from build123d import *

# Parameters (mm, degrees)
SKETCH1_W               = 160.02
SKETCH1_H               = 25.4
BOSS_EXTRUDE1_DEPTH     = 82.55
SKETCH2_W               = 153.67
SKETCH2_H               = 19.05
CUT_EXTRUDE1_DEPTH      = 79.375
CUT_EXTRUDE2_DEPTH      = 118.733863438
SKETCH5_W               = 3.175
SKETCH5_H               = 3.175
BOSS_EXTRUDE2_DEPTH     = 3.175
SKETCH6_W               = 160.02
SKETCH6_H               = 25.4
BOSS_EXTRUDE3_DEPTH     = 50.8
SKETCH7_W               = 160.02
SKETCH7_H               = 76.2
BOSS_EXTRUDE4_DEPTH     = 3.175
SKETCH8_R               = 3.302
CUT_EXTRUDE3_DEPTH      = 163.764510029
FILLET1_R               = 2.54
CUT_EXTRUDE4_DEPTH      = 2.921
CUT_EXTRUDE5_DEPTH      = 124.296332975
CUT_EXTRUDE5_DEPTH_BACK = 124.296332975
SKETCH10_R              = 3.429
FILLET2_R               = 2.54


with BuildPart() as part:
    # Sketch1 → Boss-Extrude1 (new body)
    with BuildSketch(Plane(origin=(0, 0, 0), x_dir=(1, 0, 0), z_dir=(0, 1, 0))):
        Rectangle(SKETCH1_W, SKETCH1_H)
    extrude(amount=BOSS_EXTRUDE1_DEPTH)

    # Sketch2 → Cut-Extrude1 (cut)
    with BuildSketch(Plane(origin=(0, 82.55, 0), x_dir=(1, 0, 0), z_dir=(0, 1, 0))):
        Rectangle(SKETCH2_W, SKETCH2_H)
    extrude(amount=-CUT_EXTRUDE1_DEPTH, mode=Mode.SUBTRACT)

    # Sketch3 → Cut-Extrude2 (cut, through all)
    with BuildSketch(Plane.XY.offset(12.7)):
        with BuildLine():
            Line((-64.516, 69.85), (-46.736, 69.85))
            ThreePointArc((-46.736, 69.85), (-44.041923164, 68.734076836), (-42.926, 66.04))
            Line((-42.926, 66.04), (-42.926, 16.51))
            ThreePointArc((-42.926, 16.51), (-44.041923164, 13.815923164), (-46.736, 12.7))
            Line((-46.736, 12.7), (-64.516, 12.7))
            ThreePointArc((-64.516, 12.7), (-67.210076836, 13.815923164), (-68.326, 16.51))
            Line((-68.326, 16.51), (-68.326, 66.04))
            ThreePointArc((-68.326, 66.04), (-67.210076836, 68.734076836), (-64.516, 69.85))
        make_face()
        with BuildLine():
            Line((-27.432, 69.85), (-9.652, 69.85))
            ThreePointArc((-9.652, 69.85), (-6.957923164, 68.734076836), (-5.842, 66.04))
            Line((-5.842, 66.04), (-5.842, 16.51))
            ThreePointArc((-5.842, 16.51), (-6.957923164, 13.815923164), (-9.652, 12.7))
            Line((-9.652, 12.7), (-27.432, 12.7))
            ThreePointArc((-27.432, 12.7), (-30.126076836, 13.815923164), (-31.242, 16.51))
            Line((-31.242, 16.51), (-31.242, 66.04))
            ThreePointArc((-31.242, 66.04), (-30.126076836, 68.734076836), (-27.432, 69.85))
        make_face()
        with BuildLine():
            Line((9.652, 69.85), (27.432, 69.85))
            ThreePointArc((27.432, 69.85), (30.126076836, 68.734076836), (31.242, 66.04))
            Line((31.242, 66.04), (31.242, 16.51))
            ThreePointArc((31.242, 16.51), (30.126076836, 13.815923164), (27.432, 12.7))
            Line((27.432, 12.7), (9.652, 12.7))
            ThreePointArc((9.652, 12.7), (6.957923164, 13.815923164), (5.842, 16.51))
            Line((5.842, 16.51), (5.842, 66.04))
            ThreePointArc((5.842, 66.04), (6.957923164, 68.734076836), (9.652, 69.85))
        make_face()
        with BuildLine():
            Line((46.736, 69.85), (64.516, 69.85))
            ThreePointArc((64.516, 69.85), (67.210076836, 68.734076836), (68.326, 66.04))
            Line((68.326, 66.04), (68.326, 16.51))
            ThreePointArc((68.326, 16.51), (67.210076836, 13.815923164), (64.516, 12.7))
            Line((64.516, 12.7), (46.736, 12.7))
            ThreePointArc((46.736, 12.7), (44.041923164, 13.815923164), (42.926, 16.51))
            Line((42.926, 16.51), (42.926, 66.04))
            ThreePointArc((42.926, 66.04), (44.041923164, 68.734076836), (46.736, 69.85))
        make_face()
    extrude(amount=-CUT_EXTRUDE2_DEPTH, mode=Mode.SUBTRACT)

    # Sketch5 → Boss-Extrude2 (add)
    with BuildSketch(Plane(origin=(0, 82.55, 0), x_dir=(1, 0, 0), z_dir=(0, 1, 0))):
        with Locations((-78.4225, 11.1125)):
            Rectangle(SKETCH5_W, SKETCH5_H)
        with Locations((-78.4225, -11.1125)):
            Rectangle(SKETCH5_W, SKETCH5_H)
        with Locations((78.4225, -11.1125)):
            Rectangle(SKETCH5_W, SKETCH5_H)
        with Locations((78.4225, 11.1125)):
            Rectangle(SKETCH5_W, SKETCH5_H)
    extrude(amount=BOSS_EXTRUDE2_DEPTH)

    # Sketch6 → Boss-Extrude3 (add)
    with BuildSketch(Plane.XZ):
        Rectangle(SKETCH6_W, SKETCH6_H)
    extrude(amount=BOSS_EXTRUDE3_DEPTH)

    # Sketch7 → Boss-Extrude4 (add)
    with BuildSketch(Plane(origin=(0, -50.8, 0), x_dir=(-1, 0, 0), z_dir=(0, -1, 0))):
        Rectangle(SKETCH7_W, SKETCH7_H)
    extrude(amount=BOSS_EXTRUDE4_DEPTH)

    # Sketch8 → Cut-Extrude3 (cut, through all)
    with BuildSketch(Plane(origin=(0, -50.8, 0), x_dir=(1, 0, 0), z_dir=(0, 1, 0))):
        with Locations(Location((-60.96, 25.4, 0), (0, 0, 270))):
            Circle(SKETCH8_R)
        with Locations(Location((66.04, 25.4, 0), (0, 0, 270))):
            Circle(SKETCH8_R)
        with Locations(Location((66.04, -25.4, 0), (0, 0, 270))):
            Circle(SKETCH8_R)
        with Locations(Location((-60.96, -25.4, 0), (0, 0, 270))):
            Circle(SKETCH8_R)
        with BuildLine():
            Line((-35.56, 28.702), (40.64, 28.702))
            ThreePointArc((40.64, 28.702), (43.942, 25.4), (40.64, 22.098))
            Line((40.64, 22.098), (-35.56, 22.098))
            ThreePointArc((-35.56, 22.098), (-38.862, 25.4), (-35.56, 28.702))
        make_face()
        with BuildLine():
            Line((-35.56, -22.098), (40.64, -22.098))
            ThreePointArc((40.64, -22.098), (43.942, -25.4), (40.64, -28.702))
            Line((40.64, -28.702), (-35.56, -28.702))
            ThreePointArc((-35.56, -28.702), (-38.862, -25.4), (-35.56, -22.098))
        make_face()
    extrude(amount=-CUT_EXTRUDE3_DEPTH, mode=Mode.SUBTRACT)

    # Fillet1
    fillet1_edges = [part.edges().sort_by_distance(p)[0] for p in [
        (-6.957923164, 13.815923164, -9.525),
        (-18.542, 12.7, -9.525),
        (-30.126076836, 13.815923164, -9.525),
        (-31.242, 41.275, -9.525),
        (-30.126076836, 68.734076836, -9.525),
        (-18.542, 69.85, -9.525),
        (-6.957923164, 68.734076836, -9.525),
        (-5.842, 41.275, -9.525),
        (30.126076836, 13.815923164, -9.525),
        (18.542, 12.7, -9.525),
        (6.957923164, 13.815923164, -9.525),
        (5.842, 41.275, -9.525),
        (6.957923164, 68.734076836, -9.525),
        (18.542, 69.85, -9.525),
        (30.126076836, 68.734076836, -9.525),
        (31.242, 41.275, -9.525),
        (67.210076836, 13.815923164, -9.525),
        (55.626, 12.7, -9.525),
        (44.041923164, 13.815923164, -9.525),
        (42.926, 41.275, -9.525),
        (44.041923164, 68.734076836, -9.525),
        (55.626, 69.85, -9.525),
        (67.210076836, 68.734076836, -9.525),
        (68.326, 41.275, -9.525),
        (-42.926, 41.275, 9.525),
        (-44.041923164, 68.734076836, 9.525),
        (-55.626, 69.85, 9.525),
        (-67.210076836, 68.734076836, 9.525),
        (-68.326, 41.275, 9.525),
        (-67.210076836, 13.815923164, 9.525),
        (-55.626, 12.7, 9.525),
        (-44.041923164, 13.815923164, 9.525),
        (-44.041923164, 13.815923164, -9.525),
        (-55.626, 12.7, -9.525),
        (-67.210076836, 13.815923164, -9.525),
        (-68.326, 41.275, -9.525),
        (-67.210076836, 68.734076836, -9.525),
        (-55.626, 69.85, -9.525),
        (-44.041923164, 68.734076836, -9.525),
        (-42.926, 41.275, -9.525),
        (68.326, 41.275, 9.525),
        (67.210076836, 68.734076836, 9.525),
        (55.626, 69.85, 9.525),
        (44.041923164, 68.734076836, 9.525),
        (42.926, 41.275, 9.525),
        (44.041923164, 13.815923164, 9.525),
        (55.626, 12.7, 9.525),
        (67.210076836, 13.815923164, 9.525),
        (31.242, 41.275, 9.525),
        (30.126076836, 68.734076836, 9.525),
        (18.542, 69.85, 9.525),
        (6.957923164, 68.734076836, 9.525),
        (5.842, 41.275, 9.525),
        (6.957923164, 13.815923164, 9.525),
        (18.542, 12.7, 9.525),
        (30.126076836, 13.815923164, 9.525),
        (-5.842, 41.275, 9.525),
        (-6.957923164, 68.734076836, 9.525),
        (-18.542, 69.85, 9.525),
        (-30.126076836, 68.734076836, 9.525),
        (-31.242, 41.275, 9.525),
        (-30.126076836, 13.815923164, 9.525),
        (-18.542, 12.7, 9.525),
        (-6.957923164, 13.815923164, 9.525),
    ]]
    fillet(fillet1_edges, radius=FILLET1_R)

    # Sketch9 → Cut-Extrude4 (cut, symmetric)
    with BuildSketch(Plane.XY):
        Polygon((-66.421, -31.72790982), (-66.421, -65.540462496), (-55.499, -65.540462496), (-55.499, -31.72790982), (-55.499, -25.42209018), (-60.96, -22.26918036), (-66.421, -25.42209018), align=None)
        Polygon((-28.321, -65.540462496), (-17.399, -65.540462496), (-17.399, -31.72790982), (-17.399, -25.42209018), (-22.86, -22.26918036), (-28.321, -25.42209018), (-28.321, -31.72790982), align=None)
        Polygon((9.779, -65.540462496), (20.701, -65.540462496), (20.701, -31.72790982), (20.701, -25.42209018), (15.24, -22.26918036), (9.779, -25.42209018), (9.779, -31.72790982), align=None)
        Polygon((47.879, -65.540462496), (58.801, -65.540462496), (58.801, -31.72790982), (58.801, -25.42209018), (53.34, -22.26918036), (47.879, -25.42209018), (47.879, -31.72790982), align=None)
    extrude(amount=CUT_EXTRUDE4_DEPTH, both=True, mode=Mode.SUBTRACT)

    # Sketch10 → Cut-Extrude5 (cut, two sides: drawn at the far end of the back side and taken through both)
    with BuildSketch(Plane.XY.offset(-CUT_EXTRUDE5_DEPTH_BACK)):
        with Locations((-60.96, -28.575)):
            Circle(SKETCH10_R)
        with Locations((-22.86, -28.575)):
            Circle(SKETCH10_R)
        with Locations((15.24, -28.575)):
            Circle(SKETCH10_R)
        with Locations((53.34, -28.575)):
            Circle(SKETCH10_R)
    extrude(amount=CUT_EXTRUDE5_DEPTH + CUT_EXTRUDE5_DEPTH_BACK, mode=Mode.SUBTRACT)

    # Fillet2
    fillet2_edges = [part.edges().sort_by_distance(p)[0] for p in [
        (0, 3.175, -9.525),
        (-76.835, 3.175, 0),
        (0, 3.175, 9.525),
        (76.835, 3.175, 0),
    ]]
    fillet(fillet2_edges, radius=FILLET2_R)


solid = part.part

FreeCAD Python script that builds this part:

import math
import FreeCAD as App
import Part
import Sketcher
from FreeCAD import Vector
Q = App.Units.Quantity


def edges_at(feature, points):
    """Names of the edges that pass closest to the given points."""
    edges = feature.Shape.Edges
    near = lambda p: min(range(len(edges)), key=lambda i: edges[i].distToShape(Part.Vertex(*p))[0])
    return sorted({f"Edge{near(p) + 1}" for p in points})


def add_polygon(sketch, points):
    """Adds a closed chain of lines whose ends are joined by coincident constraints."""
    first, n = sketch.GeometryCount, len(points)
    for a, b in zip(points, points[1:] + points[:1]):
        sketch.addGeometry(Part.LineSegment(App.Vector(*a, 0), App.Vector(*b, 0)), False)
    for i in range(n):
        sketch.addConstraint(Sketcher.Constraint("Coincident", first + i, 2, first + (i + 1) % n, 1))

doc = App.newDocument("Part")
body = doc.addObject("PartDesign::Body", "Body")

# Sketch on XZ plane
sketch1 = body.newObject("Sketcher::SketchObject", "Sketch")
sketch1.AttachmentSupport = (doc.getObject("XZ_Plane"), [""])
sketch1.MapMode = "FlatFace"
add_polygon(sketch1, [(-80, -13), (-80, 13), (80, 13), (80, -13)])  # lines 0-3
sketch1.addConstraint(Sketcher.Constraint("Vertical", 0))
sketch1.addConstraint(Sketcher.Constraint("Horizontal", 1))
sketch1.addConstraint(Sketcher.Constraint("Vertical", 2))
sketch1.addConstraint(Sketcher.Constraint("Horizontal", 3))
sketch1.addConstraint(Sketcher.Constraint("Symmetric", 0, 2, 2, 2, -1, 1))
sketch1.addConstraint(Sketcher.Constraint("DistanceY", 0, 1, 0, 2, Q("1 in")))
sketch1.addConstraint(Sketcher.Constraint("DistanceX", 1, 1, 1, 2, Q("6.3 in")))
pad1 = body.newObject("PartDesign::Pad", "Pad")
pad1.Profile = sketch1
pad1.Length = Q("3.25 in")
pad1.Reversed = True

# Sketch on XZ plane
sketch2 = body.newObject("Sketcher::SketchObject", "Sketch001")
sketch2.AttachmentSupport = (doc.getObject("XZ_Plane"), [""])
sketch2.MapMode = "FlatFace"
sketch2.AttachmentOffset = App.Placement(Vector(0, 0, -3.25 * 25.4), App.Rotation())
add_polygon(sketch2, [(-77, -10), (-77, 10), (77, 10), (77, -10)])  # lines 0-3
sketch2.addConstraint(Sketcher.Constraint("Vertical", 0))
sketch2.addConstraint(Sketcher.Constraint("Horizontal", 1))
sketch2.addConstraint(Sketcher.Constraint("Vertical", 2))
sketch2.addConstraint(Sketcher.Constraint("Horizontal", 3))
sketch2.addConstraint(Sketcher.Constraint("Symmetric", 0, 2, 2, 2, -1, 1))
sketch2.addConstraint(Sketcher.Constraint("DistanceX", 1, 1, 1, 2, Q("6.05 in")))
sketch2.addConstraint(Sketcher.Constraint("DistanceY", 0, 1, 0, 2, Q("0.75 in")))
pocket1 = body.newObject("PartDesign::Pocket", "Pocket")
pocket1.Profile = sketch2
pocket1.Length = Q("3.125 in")
pocket1.Reversed = True

# Sketch on XY plane
sketch3 = body.newObject("Sketcher::SketchObject", "Sketch002")
sketch3.AttachmentSupport = (doc.getObject("XY_Plane"), [""])
sketch3.MapMode = "FlatFace"
sketch3.AttachmentOffset = App.Placement(Vector(0, 0, 0.5 * 25.4), App.Rotation())
sketch3.addGeometry(Part.LineSegment(Vector(-46.7, 69.8, 0), Vector(-64.5, 69.8, 0)), False)
sketch3.addGeometry(Part.ArcOfCircle(Part.Circle(Vector(-64.5, 66, 0), Vector(0, 0, 1), 3.8), math.radians(90), math.radians(180)), False)
sketch3.addGeometry(Part.LineSegment(Vector(-68.3, 66, 0), Vector(-68.3, 16.5, 0)), False)
sketch3.addGeometry(Part.ArcOfCircle(Part.Circle(Vector(-64.5, 16.5, 0), Vector(0, 0, 1), 3.8), math.radians(-180), math.radians(-90)), False)
sketch3.addGeometry(Part.LineSegment(Vector(-64.5, 12.7, 0), Vector(-46.7, 12.7, 0)), False)
sketch3.addGeometry(Part.ArcOfCircle(Part.Circle(Vector(-46.7, 16.5, 0), Vector(0, 0, 1), 3.8), math.radians(-90), math.radians(0)), False)
sketch3.addGeometry(Part.LineSegment(Vector(-42.9, 16.5, 0), Vector(-42.9, 66, 0)), False)
sketch3.addGeometry(Part.ArcOfCircle(Part.Circle(Vector(-46.7, 66, 0), Vector(0, 0, 1), 3.8), math.radians(0), math.radians(90)), False)
sketch3.addGeometry(Part.LineSegment(Vector(-9.7, 69.8, 0), Vector(-27.4, 69.8, 0)), False)
sketch3.addGeometry(Part.ArcOfCircle(Part.Circle(Vector(-27.4, 66, 0), Vector(0, 0, 1), 3.8), math.radians(90), math.radians(180)), False)
sketch3.addGeometry(Part.LineSegment(Vector(-31.2, 66, 0), Vector(-31.2, 16.5, 0)), False)
sketch3.addGeometry(Part.ArcOfCircle(Part.Circle(Vector(-27.4, 16.5, 0), Vector(0, 0, 1), 3.8), math.radians(-180), math.radians(-90)), False)
sketch3.addGeometry(Part.LineSegment(Vector(-27.4, 12.7, 0), Vector(-9.7, 12.7, 0)), False)
sketch3.addGeometry(Part.ArcOfCircle(Part.Circle(Vector(-9.7, 16.5, 0), Vector(0, 0, 1), 3.8), math.radians(-90), math.radians(0)), False)
sketch3.addGeometry(Part.LineSegment(Vector(-5.8, 16.5, 0), Vector(-5.8, 66, 0)), False)
sketch3.addGeometry(Part.ArcOfCircle(Part.Circle(Vector(-9.7, 66, 0), Vector(0, 0, 1), 3.8), math.radians(0), math.radians(90)), False)
sketch3.addGeometry(Part.LineSegment(Vector(27.4, 69.8, 0), Vector(9.7, 69.8, 0)), False)
sketch3.addGeometry(Part.ArcOfCircle(Part.Circle(Vector(9.7, 66, 0), Vector(0, 0, 1), 3.8), math.radians(90), math.radians(180)), False)
sketch3.addGeometry(Part.LineSegment(Vector(5.8, 66, 0), Vector(5.8, 16.5, 0)), False)
sketch3.addGeometry(Part.ArcOfCircle(Part.Circle(Vector(9.7, 16.5, 0), Vector(0, 0, 1), 3.8), math.radians(-180), math.radians(-90)), False)
sketch3.addGeometry(Part.LineSegment(Vector(9.7, 12.7, 0), Vector(27.4, 12.7, 0)), False)
sketch3.addGeometry(Part.ArcOfCircle(Part.Circle(Vector(27.4, 16.5, 0), Vector(0, 0, 1), 3.8), math.radians(-90), math.radians(0)), False)
sketch3.addGeometry(Part.LineSegment(Vector(31.2, 16.5, 0), Vector(31.2, 66, 0)), False)
sketch3.addGeometry(Part.ArcOfCircle(Part.Circle(Vector(27.4, 66, 0), Vector(0, 0, 1), 3.8), math.radians(0), math.radians(90)), False)
sketch3.addGeometry(Part.LineSegment(Vector(64.5, 69.8, 0), Vector(46.7, 69.8, 0)), False)
sketch3.addGeometry(Part.ArcOfCircle(Part.Circle(Vector(46.7, 66, 0), Vector(0, 0, 1), 3.8), math.radians(90), math.radians(180)), False)
sketch3.addGeometry(Part.LineSegment(Vector(42.9, 66, 0), Vector(42.9, 16.5, 0)), False)
sketch3.addGeometry(Part.ArcOfCircle(Part.Circle(Vector(46.7, 16.5, 0), Vector(0, 0, 1), 3.8), math.radians(-180), math.radians(-90)), False)
sketch3.addGeometry(Part.LineSegment(Vector(46.7, 12.7, 0), Vector(64.5, 12.7, 0)), False)
sketch3.addGeometry(Part.ArcOfCircle(Part.Circle(Vector(64.5, 16.5, 0), Vector(0, 0, 1), 3.8), math.radians(-90), math.radians(0)), False)
sketch3.addGeometry(Part.LineSegment(Vector(68.3, 16.5, 0), Vector(68.3, 66, 0)), False)
sketch3.addGeometry(Part.ArcOfCircle(Part.Circle(Vector(64.5, 66, 0), Vector(0, 0, 1), 3.8), math.radians(0), math.radians(90)), False)
sketch3.addConstraint(Sketcher.Constraint("Tangent", 0, 2, 1, 1))
sketch3.addConstraint(Sketcher.Constraint("Tangent", 1, 2, 2, 1))
sketch3.addConstraint(Sketcher.Constraint("Tangent", 2, 2, 3, 1))
sketch3.addConstraint(Sketcher.Constraint("Tangent", 3, 2, 4, 1))
sketch3.addConstraint(Sketcher.Constraint("Tangent", 4, 2, 5, 1))
sketch3.addConstraint(Sketcher.Constraint("Tangent", 5, 2, 6, 1))
sketch3.addConstraint(Sketcher.Constraint("Tangent", 6, 2, 7, 1))
sketch3.addConstraint(Sketcher.Constraint("Tangent", 7, 2, 0, 1))
sketch3.addConstraint(Sketcher.Constraint("Tangent", 8, 2, 9, 1))
sketch3.addConstraint(Sketcher.Constraint("Tangent", 9, 2, 10, 1))
sketch3.addConstraint(Sketcher.Constraint("Tangent", 10, 2, 11, 1))
sketch3.addConstraint(Sketcher.Constraint("Tangent", 11, 2, 12, 1))
sketch3.addConstraint(Sketcher.Constraint("Tangent", 12, 2, 13, 1))
sketch3.addConstraint(Sketcher.Constraint("Tangent", 13, 2, 14, 1))
sketch3.addConstraint(Sketcher.Constraint("Tangent", 14, 2, 15, 1))
sketch3.addConstraint(Sketcher.Constraint("Tangent", 15, 2, 8, 1))
sketch3.addConstraint(Sketcher.Constraint("Tangent", 16, 2, 17, 1))
sketch3.addConstraint(Sketcher.Constraint("Tangent", 17, 2, 18, 1))
sketch3.addConstraint(Sketcher.Constraint("Tangent", 18, 2, 19, 1))
sketch3.addConstraint(Sketcher.Constraint("Tangent", 19, 2, 20, 1))
sketch3.addConstraint(Sketcher.Constraint("Tangent", 20, 2, 21, 1))
sketch3.addConstraint(Sketcher.Constraint("Tangent", 21, 2, 22, 1))
sketch3.addConstraint(Sketcher.Constraint("Tangent", 22, 2, 23, 1))
sketch3.addConstraint(Sketcher.Constraint("Tangent", 23, 2, 16, 1))
sketch3.addConstraint(Sketcher.Constraint("Tangent", 24, 2, 25, 1))
sketch3.addConstraint(Sketcher.Constraint("Tangent", 25, 2, 26, 1))
sketch3.addConstraint(Sketcher.Constraint("Tangent", 26, 2, 27, 1))
sketch3.addConstraint(Sketcher.Constraint("Tangent", 27, 2, 28, 1))
sketch3.addConstraint(Sketcher.Constraint("Tangent", 28, 2, 29, 1))
sketch3.addConstraint(Sketcher.Constraint("Tangent", 29, 2, 30, 1))
sketch3.addConstraint(Sketcher.Constraint("Tangent", 30, 2, 31, 1))
sketch3.addConstraint(Sketcher.Constraint("Tangent", 31, 2, 24, 1))
sketch3.addConstraint(Sketcher.Constraint("Horizontal", 0))
sketch3.addConstraint(Sketcher.Constraint("Vertical", 2))
sketch3.addConstraint(Sketcher.Constraint("Horizontal", 4))
sketch3.addConstraint(Sketcher.Constraint("Vertical", 6))
sketch3.addConstraint(Sketcher.Constraint("Horizontal", 8))
sketch3.addConstraint(Sketcher.Constraint("Vertical", 10))
sketch3.addConstraint(Sketcher.Constraint("Horizontal", 12))
sketch3.addConstraint(Sketcher.Constraint("Vertical", 14))
sketch3.addConstraint(Sketcher.Constraint("Horizontal", 16))
sketch3.addConstraint(Sketcher.Constraint("Vertical", 18))
sketch3.addConstraint(Sketcher.Constraint("Horizontal", 20))
sketch3.addConstraint(Sketcher.Constraint("Vertical", 22))
sketch3.addConstraint(Sketcher.Constraint("Horizontal", 24))
sketch3.addConstraint(Sketcher.Constraint("Vertical", 26))
sketch3.addConstraint(Sketcher.Constraint("Horizontal", 28))
sketch3.addConstraint(Sketcher.Constraint("Vertical", 30))
sketch3.addConstraint(Sketcher.Constraint("Equal", 1, 3))
sketch3.addConstraint(Sketcher.Constraint("Equal", 3, 5))
sketch3.addConstraint(Sketcher.Constraint("Equal", 5, 7))
sketch3.addConstraint(Sketcher.Constraint("Equal", 7, 9))
sketch3.addConstraint(Sketcher.Constraint("Equal", 9, 11))
sketch3.addConstraint(Sketcher.Constraint("Equal", 11, 13))
sketch3.addConstraint(Sketcher.Constraint("Equal", 13, 15))
sketch3.addConstraint(Sketcher.Constraint("Equal", 15, 17))
sketch3.addConstraint(Sketcher.Constraint("Equal", 17, 19))
sketch3.addConstraint(Sketcher.Constraint("Equal", 19, 21))
sketch3.addConstraint(Sketcher.Constraint("Equal", 21, 23))
sketch3.addConstraint(Sketcher.Constraint("Equal", 23, 25))
sketch3.addConstraint(Sketcher.Constraint("Equal", 25, 27))
sketch3.addConstraint(Sketcher.Constraint("Equal", 27, 29))
sketch3.addConstraint(Sketcher.Constraint("Equal", 29, 31))
sketch3.addConstraint(Sketcher.Constraint("Symmetric", 15, 3, 17, 3, -2))
sketch3.addConstraint(Sketcher.Constraint("Symmetric", 11, 3, 21, 3, -2))
sketch3.addConstraint(Sketcher.Constraint("Symmetric", 7, 3, 25, 3, -2))
sketch3.addConstraint(Sketcher.Constraint("Symmetric", 3, 3, 29, 3, -2))
sketch3.addConstraint(Sketcher.Constraint("Horizontal", 7, 3, 9, 3))
sketch3.addConstraint(Sketcher.Constraint("Horizontal", 5, 3, 11, 3))
sketch3.addConstraint(Sketcher.Constraint("Equal", 4, 8))
sketch3.addConstraint(Sketcher.Constraint("Radius", 1, Q("0.15 in")))
sketch3.addConstraint(Sketcher.Constraint("DistanceX", 0, 2, 0, 1, Q("0.7 in")))
sketch3.addConstraint(Sketcher.Constraint("DistanceY", 2, 2, 2, 1, Q("1.95 in")))
sketch3.addConstraint(Sketcher.Constraint("DistanceY", -1, 1, 1, 3, Q("2.6 in")))
sketch3.addConstraint(Sketcher.Constraint("DistanceX", 1, 3, -1, 1, Q("2.54 in")))
sketch3.addConstraint(Sketcher.Constraint("DistanceX", 9, 3, -1, 1, Q("1.08 in")))
pocket2 = body.newObject("PartDesign::Pocket", "Pocket001")
pocket2.Profile = sketch3
pocket2.Type = "ThroughAll"

# Sketch on XZ plane
sketch4 = body.newObject("Sketcher::SketchObject", "Sketch003")
sketch4.AttachmentSupport = (doc.getObject("XZ_Plane"), [""])
sketch4.MapMode = "FlatFace"
sketch4.AttachmentOffset = App.Placement(Vector(0, 0, -3.25 * 25.4), App.Rotation())
add_polygon(sketch4, [(-80, -12.7), (-80, -9.5), (-76.8, -9.5), (-76.8, -12.7)])  # lines 0-3
add_polygon(sketch4, [(-80, 9.5), (-80, 12.7), (-76.8, 12.7), (-76.8, 9.5)])  # lines 4-7
add_polygon(sketch4, [(76.8, 9.5), (76.8, 12.7), (80, 12.7), (80, 9.5)])  # lines 8-11
add_polygon(sketch4, [(76.8, -12.7), (76.8, -9.5), (80, -9.5), (80, -12.7)])  # lines 12-15
sketch4.addConstraint(Sketcher.Constraint("Vertical", 0))
sketch4.addConstraint(Sketcher.Constraint("Horizontal", 1))
sketch4.addConstraint(Sketcher.Constraint("Vertical", 2))
sketch4.addConstraint(Sketcher.Constraint("Horizontal", 3))
sketch4.addConstraint(Sketcher.Constraint("Vertical", 4))
sketch4.addConstraint(Sketcher.Constraint("Horizontal", 5))
sketch4.addConstraint(Sketcher.Constraint("Vertical", 6))
sketch4.addConstraint(Sketcher.Constraint("Horizontal", 7))
sketch4.addConstraint(Sketcher.Constraint("Vertical", 8))
sketch4.addConstraint(Sketcher.Constraint("Horizontal", 9))
sketch4.addConstraint(Sketcher.Constraint("Vertical", 10))
sketch4.addConstraint(Sketcher.Constraint("Horizontal", 11))
sketch4.addConstraint(Sketcher.Constraint("Vertical", 12))
sketch4.addConstraint(Sketcher.Constraint("Horizontal", 13))
sketch4.addConstraint(Sketcher.Constraint("Vertical", 14))
sketch4.addConstraint(Sketcher.Constraint("Horizontal", 15))
sketch4.addConstraint(Sketcher.Constraint("Symmetric", 2, 2, 8, 2, -1, 1))
sketch4.addConstraint(Sketcher.Constraint("Symmetric", 0, 2, 10, 2, -1, 1))
sketch4.addConstraint(Sketcher.Constraint("Symmetric", 6, 2, 12, 2, -1, 1))
sketch4.addConstraint(Sketcher.Constraint("Symmetric", 4, 2, 14, 2, -1, 1))
sketch4.addConstraint(Sketcher.Constraint("Symmetric", 5, 2, 8, 2, -2))
sketch4.addConstraint(Sketcher.Constraint("Symmetric", 7, 2, 10, 2, -2))
sketch4.addConstraint(Sketcher.Constraint("Equal", 15, 0))
sketch4.addConstraint(Sketcher.Constraint("DistanceY", 3, 2, 4, 2, Q("1 in")))
sketch4.addConstraint(Sketcher.Constraint("DistanceX", 1, 1, 1, 2, Q("0.125 in")))
sketch4.addConstraint(Sketcher.Constraint("DistanceX", 0, 2, -1, 1, Q("3.15 in")))
pad2 = body.newObject("PartDesign::Pad", "Pad001")
pad2.Profile = sketch4
pad2.Length = Q("0.125 in")
pad2.Reversed = True

# Sketch on XZ plane
sketch5 = body.newObject("Sketcher::SketchObject", "Sketch004")
sketch5.AttachmentSupport = (doc.getObject("XZ_Plane"), [""])
sketch5.MapMode = "FlatFace"
add_polygon(sketch5, [(-80, 13), (-80, -13), (80, -13), (80, 13)])  # lines 0-3
sketch5.addConstraint(Sketcher.Constraint("Vertical", 0))
sketch5.addConstraint(Sketcher.Constraint("Horizontal", 1))
sketch5.addConstraint(Sketcher.Constraint("Vertical", 2))
sketch5.addConstraint(Sketcher.Constraint("Horizontal", 3))
sketch5.addConstraint(Sketcher.Constraint("Symmetric", 0, 2, 2, 2, -1, 1))
sketch5.addConstraint(Sketcher.Constraint("DistanceY", 0, 2, 0, 1, Q("1 in")))
sketch5.addConstraint(Sketcher.Constraint("DistanceX", 1, 1, 1, 2, Q("6.3 in")))
pad3 = body.newObject("PartDesign::Pad", "Pad002")
pad3.Profile = sketch5
pad3.Length = Q("2 in")

# Sketch on XZ plane
sketch6 = body.newObject("Sketcher::SketchObject", "Sketch005")
sketch6.AttachmentSupport = (doc.getObject("XZ_Plane"), [""])
sketch6.MapMode = "FlatFace"
sketch6.AttachmentOffset = App.Placement(Vector(0, 0, 2 * 25.4), App.Rotation())
add_polygon(sketch6, [(80, -38), (80, 38), (-80, 38), (-80, -38)])  # lines 0-3
sketch6.addConstraint(Sketcher.Constraint("Vertical", 0))
sketch6.addConstraint(Sketcher.Constraint("Horizontal", 1))
sketch6.addConstraint(Sketcher.Constraint("Vertical", 2))
sketch6.addConstraint(Sketcher.Constraint("Horizontal", 3))
sketch6.addConstraint(Sketcher.Constraint("Symmetric", 0, 2, 2, 2, -1, 1))
sketch6.addConstraint(Sketcher.Constraint("DistanceY", 0, 1, 0, 2, Q("3 in")))
sketch6.addConstraint(Sketcher.Constraint("DistanceX", 1, 2, 1, 1, Q("6.3 in")))
pad4 = body.newObject("PartDesign::Pad", "Pad003")
pad4.Profile = sketch6
pad4.Length = Q("0.125 in")

# Sketch on XZ plane
sketch7 = body.newObject("Sketcher::SketchObject", "Sketch006")
sketch7.AttachmentSupport = (doc.getObject("XZ_Plane"), [""])
sketch7.MapMode = "FlatFace"
sketch7.AttachmentOffset = App.Placement(Vector(0, 0, 2 * 25.4), App.Rotation())
sketch7.addGeometry(Part.Circle(Vector(-61, -25.4, 0), Vector(0, 0, 1), 3.3), False)
sketch7.addGeometry(Part.Circle(Vector(66, -25.4, 0), Vector(0, 0, 1), 3.3), False)
sketch7.addGeometry(Part.Circle(Vector(66, 25.4, 0), Vector(0, 0, 1), 3.3), False)
sketch7.addGeometry(Part.Circle(Vector(-61, 25.4, 0), Vector(0, 0, 1), 3.3), False)
sketch7.addGeometry(Part.LineSegment(Vector(40.6, -28.7, 0), Vector(-35.6, -28.7, 0)), False)
sketch7.addGeometry(Part.ArcOfCircle(Part.Circle(Vector(-35.6, -25.4, 0), Vector(0, 0, 1), 3.3), math.radians(90), math.radians(270)), False)
sketch7.addGeometry(Part.LineSegment(Vector(-35.6, -22.1, 0), Vector(40.6, -22.1, 0)), False)
sketch7.addGeometry(Part.ArcOfCircle(Part.Circle(Vector(40.6, -25.4, 0), Vector(0, 0, 1), 3.3), math.radians(-90), math.radians(90)), False)
sketch7.addGeometry(Part.LineSegment(Vector(40.6, 22.1, 0), Vector(-35.6, 22.1, 0)), False)
sketch7.addGeometry(Part.ArcOfCircle(Part.Circle(Vector(-35.6, 25.4, 0), Vector(0, 0, 1), 3.3), math.radians(90), math.radians(270)), False)
sketch7.addGeometry(Part.LineSegment(Vector(-35.6, 28.7, 0), Vector(40.6, 28.7, 0)), False)
sketch7.addGeometry(Part.ArcOfCircle(Part.Circle(Vector(40.6, 25.4, 0), Vector(0, 0, 1), 3.3), math.radians(-90), math.radians(90)), False)
sketch7.addConstraint(Sketcher.Constraint("Tangent", 4, 2, 5, 2))
sketch7.addConstraint(Sketcher.Constraint("Tangent", 5, 1, 6, 1))
sketch7.addConstraint(Sketcher.Constraint("Tangent", 6, 2, 7, 2))
sketch7.addConstraint(Sketcher.Constraint("Tangent", 7, 1, 4, 1))
sketch7.addConstraint(Sketcher.Constraint("Tangent", 8, 2, 9, 2))
sketch7.addConstraint(Sketcher.Constraint("Tangent", 9, 1, 10, 1))
sketch7.addConstraint(Sketcher.Constraint("Tangent", 10, 2, 11, 2))
sketch7.addConstraint(Sketcher.Constraint("Tangent", 11, 1, 8, 1))
sketch7.addConstraint(Sketcher.Constraint("Horizontal", 4))
sketch7.addConstraint(Sketcher.Constraint("Horizontal", 6))
sketch7.addConstraint(Sketcher.Constraint("Horizontal", 8))
sketch7.addConstraint(Sketcher.Constraint("Horizontal", 10))
sketch7.addConstraint(Sketcher.Constraint("Equal", 0, 1))
sketch7.addConstraint(Sketcher.Constraint("Equal", 1, 2))
sketch7.addConstraint(Sketcher.Constraint("Equal", 2, 3))
sketch7.addConstraint(Sketcher.Constraint("Equal", 3, 5))
sketch7.addConstraint(Sketcher.Constraint("Equal", 7, 9))
sketch7.addConstraint(Sketcher.Constraint("Symmetric", 1, 3, 2, 3, -1))
sketch7.addConstraint(Sketcher.Constraint("Symmetric", 0, 3, 3, 3, -1))
sketch7.addConstraint(Sketcher.Constraint("Symmetric", 5, 3, 9, 3, -1))
sketch7.addConstraint(Sketcher.Constraint("Horizontal", 0, 3, 1, 3))
sketch7.addConstraint(Sketcher.Constraint("Horizontal", 1, 3, 5, 3))
sketch7.addConstraint(Sketcher.Constraint("Vertical", 7, 3, 11, 3))
sketch7.addConstraint(Sketcher.Constraint("Diameter", 0, Q("0.26 in")))
sketch7.addConstraint(Sketcher.Constraint("DistanceX", 4, 2, 4, 1, Q("3 in")))
sketch7.addConstraint(Sketcher.Constraint("DistanceY", 0, 3, -1, 1, Q("1 in")))
sketch7.addConstraint(Sketcher.Constraint("DistanceX", 0, 3, 1, 3, Q("5 in")))
sketch7.addConstraint(Sketcher.Constraint("DistanceX", 0, 3, 5, 3, Q("1 in")))
sketch7.addConstraint(Sketcher.Constraint("DistanceX", 0, 3, -1, 1, Q("2.4 in")))
pocket3 = body.newObject("PartDesign::Pocket", "Pocket002")
pocket3.Profile = sketch7
pocket3.Type = "ThroughAll"
pocket3.Reversed = True
doc.recompute()

fillet = body.newObject("PartDesign::Fillet", "Fillet")
fillet.Base = (pocket3, edges_at(pocket3, [
    (-6.958, 13.816, -9.525),
    (-18.542, 12.7, -9.525),
    (-30.126, 13.816, -9.525),
    (-31.242, 41.275, -9.525),
    (-30.126, 68.734, -9.525),
    (-18.542, 69.85, -9.525),
    (-6.958, 68.734, -9.525),
    (-5.842, 41.275, -9.525),
    (30.126, 13.816, -9.525),
    (18.542, 12.7, -9.525),
    (6.958, 13.816, -9.525),
    (5.842, 41.275, -9.525),
    (6.958, 68.734, -9.525),
    (18.542, 69.85, -9.525),
    (30.126, 68.734, -9.525),
    (31.242, 41.275, -9.525),
    (67.21, 13.816, -9.525),
    (55.626, 12.7, -9.525),
    (44.042, 13.816, -9.525),
    (42.926, 41.275, -9.525),
    (44.042, 68.734, -9.525),
    (55.626, 69.85, -9.525),
    (67.21, 68.734, -9.525),
    (68.326, 41.275, -9.525),
    (-42.926, 41.275, 9.525),
    (-44.042, 68.734, 9.525),
    (-55.626, 69.85, 9.525),
    (-67.21, 68.734, 9.525),
    (-68.326, 41.275, 9.525),
    (-67.21, 13.816, 9.525),
    (-55.626, 12.7, 9.525),
    (-44.042, 13.816, 9.525),
    (-44.042, 13.816, -9.525),
    (-55.626, 12.7, -9.525),
    (-67.21, 13.816, -9.525),
    (-68.326, 41.275, -9.525),
    (-67.21, 68.734, -9.525),
    (-55.626, 69.85, -9.525),
    (-44.042, 68.734, -9.525),
    (-42.926, 41.275, -9.525),
    (68.326, 41.275, 9.525),
    (67.21, 68.734, 9.525),
    (55.626, 69.85, 9.525),
    (44.042, 68.734, 9.525),
    (42.926, 41.275, 9.525),
    (44.042, 13.816, 9.525),
    (55.626, 12.7, 9.525),
    (67.21, 13.816, 9.525),
    (31.242, 41.275, 9.525),
    (30.126, 68.734, 9.525),
    (18.542, 69.85, 9.525),
    (6.958, 68.734, 9.525),
    (5.842, 41.275, 9.525),
    (6.958, 13.816, 9.525),
    (18.542, 12.7, 9.525),
    (30.126, 13.816, 9.525),
    (-5.842, 41.275, 9.525),
    (-6.958, 68.734, 9.525),
    (-18.542, 69.85, 9.525),
    (-30.126, 68.734, 9.525),
    (-31.242, 41.275, 9.525),
    (-30.126, 13.816, 9.525),
    (-18.542, 12.7, 9.525),
    (-6.958, 13.816, 9.525),
]))
fillet.Radius = Q("0.1 in")

# Sketch on XY plane
sketch8 = body.newObject("Sketcher::SketchObject", "Sketch007")
sketch8.AttachmentSupport = (doc.getObject("XY_Plane"), [""])
sketch8.MapMode = "FlatFace"
add_polygon(sketch8, [(-66, -66), (-55, -66), (-55, -25), (-61, -22), (-66, -25)])  # lines 0-4
add_polygon(sketch8, [(-28, -66), (-17, -66), (-17, -25), (-23, -22), (-28, -25)])  # lines 5-9
add_polygon(sketch8, [(10, -66), (21, -66), (21, -25), (15, -22), (10, -25)])  # lines 10-14
add_polygon(sketch8, [(48, -66), (59, -66), (59, -25), (53, -22), (48, -25)])  # lines 15-19
sketch8.addConstraint(Sketcher.Constraint("Horizontal", 0))
sketch8.addConstraint(Sketcher.Constraint("Vertical", 1))
sketch8.addConstraint(Sketcher.Constraint("Vertical", 4))
sketch8.addConstraint(Sketcher.Constraint("Horizontal", 5))
sketch8.addConstraint(Sketcher.Constraint("Vertical", 6))
sketch8.addConstraint(Sketcher.Constraint("Vertical", 9))
sketch8.addConstraint(Sketcher.Constraint("Horizontal", 10))
sketch8.addConstraint(Sketcher.Constraint("Vertical", 11))
sketch8.addConstraint(Sketcher.Constraint("Vertical", 14))
sketch8.addConstraint(Sketcher.Constraint("Horizontal", 15))
sketch8.addConstraint(Sketcher.Constraint("Vertical", 16))
sketch8.addConstraint(Sketcher.Constraint("Vertical", 19))
sketch8.addConstraint(Sketcher.Constraint("Parallel", 2, 7))
sketch8.addConstraint(Sketcher.Constraint("Parallel", 3, 8))
sketch8.addConstraint(Sketcher.Constraint("Parallel", 7, 12))
sketch8.addConstraint(Sketcher.Constraint("Parallel", 8, 13))
sketch8.addConstraint(Sketcher.Constraint("Parallel", 12, 17))
sketch8.addConstraint(Sketcher.Constraint("Parallel", 13, 18))
sketch8.addConstraint(Sketcher.Constraint("Horizontal", 1, 2, 3, 2))
sketch8.addConstraint(Sketcher.Constraint("Horizontal", 4, 2, 5, 2))
sketch8.addConstraint(Sketcher.Constraint("Horizontal", 3, 2, 6, 2))
sketch8.addConstraint(Sketcher.Constraint("Horizontal", 2, 2, 7, 2))
sketch8.addConstraint(Sketcher.Constraint("Horizontal", 6, 2, 8, 2))
sketch8.addConstraint(Sketcher.Constraint("Horizontal", 9, 2, 10, 2))
sketch8.addConstraint(Sketcher.Constraint("Horizontal", 8, 2, 11, 2))
sketch8.addConstraint(Sketcher.Constraint("Horizontal", 7, 2, 12, 2))
sketch8.addConstraint(Sketcher.Constraint("Horizontal", 11, 2, 13, 2))
sketch8.addConstraint(Sketcher.Constraint("Horizontal", 14, 2, 15, 2))
sketch8.addConstraint(Sketcher.Constraint("Horizontal", 13, 2, 16, 2))
sketch8.addConstraint(Sketcher.Constraint("Horizontal", 12, 2, 17, 2))
sketch8.addConstraint(Sketcher.Constraint("Horizontal", 16, 2, 18, 2))
sketch8.addConstraint(Sketcher.Constraint("Equal", 2, 3))
sketch8.addConstraint(Sketcher.Constraint("Angle", 2, Q("150 deg")))
sketch8.addConstraint(Sketcher.Constraint("DistanceX", 0, 1, 0, 2, Q("0.43 in")))
sketch8.addConstraint(Sketcher.Constraint("DistanceX", 2, 2, -1, 1, Q("2.4 in")))
sketch8.addConstraint(Sketcher.Constraint("DistanceX", 7, 2, -1, 1, Q("0.9 in")))
sketch8.addConstraint(Sketcher.Constraint("DistanceX", -1, 1, 12, 2, Q("0.6 in")))
sketch8.addConstraint(Sketcher.Constraint("DistanceX", -1, 1, 17, 2, Q("2.1 in")))
sketch8.addConstraint(Sketcher.Constraint("DistanceY", 1, 1, 1, 2, Q("40.118372 mm")))
sketch8.addConstraint(Sketcher.Constraint("DistanceY", 1, 2, -1, 1, Q("25.42209 mm")))
pocket4 = body.newObject("PartDesign::Pocket", "Pocket003")
pocket4.Profile = sketch8
pocket4.Length = Q("0.23 in")
pocket4.Midplane = True

# Sketch on XY plane
sketch9 = body.newObject("Sketcher::SketchObject", "Sketch008")
sketch9.AttachmentSupport = (doc.getObject("XY_Plane"), [""])
sketch9.MapMode = "FlatFace"
sketch9.addGeometry(Part.Circle(Vector(-61, -28.6, 0), Vector(0, 0, 1), 3.4), False)
sketch9.addGeometry(Part.Circle(Vector(-22.9, -28.6, 0), Vector(0, 0, 1), 3.4), False)
sketch9.addGeometry(Part.Circle(Vector(15.2, -28.6, 0), Vector(0, 0, 1), 3.4), False)
sketch9.addGeometry(Part.Circle(Vector(53.3, -28.6, 0), Vector(0, 0, 1), 3.4), False)
sketch9.addConstraint(Sketcher.Constraint("Equal", 0, 1))
sketch9.addConstraint(Sketcher.Constraint("Equal", 1, 2))
sketch9.addConstraint(Sketcher.Constraint("Equal", 2, 3))
sketch9.addConstraint(Sketcher.Constraint("Horizontal", 0, 3, 1, 3))
sketch9.addConstraint(Sketcher.Constraint("Horizontal", 1, 3, 2, 3))
sketch9.addConstraint(Sketcher.Constraint("Horizontal", 2, 3, 3, 3))
sketch9.addConstraint(Sketcher.Constraint("Diameter", 0, Q("0.27 in")))
sketch9.addConstraint(Sketcher.Constraint("DistanceX", 0, 3, 2, 3, Q("3 in")))
sketch9.addConstraint(Sketcher.Constraint("DistanceX", 1, 3, 3, 3, Q("3 in")))
sketch9.addConstraint(Sketcher.Constraint("DistanceX", 0, 3, -1, 1, Q("2.4 in")))
sketch9.addConstraint(Sketcher.Constraint("DistanceX", 1, 3, -1, 1, Q("0.9 in")))
sketch9.addConstraint(Sketcher.Constraint("DistanceY", 0, 3, -1, 1, Q("1.125 in")))
pocket5 = body.newObject("PartDesign::Pocket", "Pocket004")
pocket5.Profile = sketch9
pocket5.Type = "ThroughAll"
pocket5.Midplane = True
doc.recompute()

fillet2 = body.newObject("PartDesign::Fillet", "Fillet001")
fillet2.Base = (pocket5, edges_at(pocket5, [
    (0, 3.175, -9.525),
    (-76.835, 3.175, 0),
    (0, 3.175, 9.525),
    (76.835, 3.175, 0),
]))
fillet2.Radius = Q("0.1 in")

doc.recompute()
